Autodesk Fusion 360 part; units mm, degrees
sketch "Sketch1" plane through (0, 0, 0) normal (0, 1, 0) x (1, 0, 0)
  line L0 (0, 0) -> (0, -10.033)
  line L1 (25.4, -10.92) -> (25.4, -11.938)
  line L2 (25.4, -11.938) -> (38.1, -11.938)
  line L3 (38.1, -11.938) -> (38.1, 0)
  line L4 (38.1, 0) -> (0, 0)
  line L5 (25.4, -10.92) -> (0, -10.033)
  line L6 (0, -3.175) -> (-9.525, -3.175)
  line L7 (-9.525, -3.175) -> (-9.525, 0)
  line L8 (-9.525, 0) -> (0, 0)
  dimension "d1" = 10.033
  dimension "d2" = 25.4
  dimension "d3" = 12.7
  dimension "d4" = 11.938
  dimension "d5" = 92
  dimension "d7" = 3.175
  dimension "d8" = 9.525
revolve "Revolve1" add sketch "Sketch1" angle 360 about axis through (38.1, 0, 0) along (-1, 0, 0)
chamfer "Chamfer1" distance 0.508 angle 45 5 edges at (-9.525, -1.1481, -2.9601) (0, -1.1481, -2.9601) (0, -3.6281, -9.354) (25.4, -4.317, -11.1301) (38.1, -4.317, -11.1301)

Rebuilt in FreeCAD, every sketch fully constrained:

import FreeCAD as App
import Part
import Sketcher
Q = App.Units.Quantity


def edges_at(feature, points):
    """Names of the edges that pass closest to the given points."""
    edges = feature.Shape.Edges
    near = lambda p: min(range(len(edges)), key=lambda i: edges[i].distToShape(Part.Vertex(*p))[0])
    return sorted({f"Edge{near(p) + 1}" for p in points})


def add_polygon(sketch, points):
    """Adds a closed chain of lines whose ends are joined by coincident constraints."""
    first, n = sketch.GeometryCount, len(points)
    for a, b in zip(points, points[1:] + points[:1]):
        sketch.addGeometry(Part.LineSegment(App.Vector(*a, 0), App.Vector(*b, 0)), False)
    for i in range(n):
        sketch.addConstraint(Sketcher.Constraint("Coincident", first + i, 2, first + (i + 1) % n, 1))

doc = App.newDocument("Part")
body = doc.addObject("PartDesign::Body", "Body")

sketch1 = body.newObject("Sketcher::SketchObject", "Sketch")
sketch1.AttachmentSupport = (doc.getObject("XZ_Plane"), [""])
sketch1.MapMode = "FlatFace"
add_polygon(sketch1, [(38.1, 0), (-9.5, 0), (-9.5, 3.2), (0, 3.2), (0, 10), (25.4, 10.9), (25.4, 11.9), (38.1, 11.9)])
sketch1.addConstraint(Sketcher.Constraint("Horizontal", 0))
sketch1.addConstraint(Sketcher.Constraint("Vertical", 1))
sketch1.addConstraint(Sketcher.Constraint("Horizontal", 2))
sketch1.addConstraint(Sketcher.Constraint("Vertical", 3))
sketch1.addConstraint(Sketcher.Constraint("Vertical", 5))
sketch1.addConstraint(Sketcher.Constraint("Horizontal", 6))
sketch1.addConstraint(Sketcher.Constraint("Vertical", 7))
sketch1.addConstraint(Sketcher.Constraint("PointOnObject", 0, 2, -1))
sketch1.addConstraint(Sketcher.Constraint("PointOnObject", 2, 2, -2))
sketch1.addConstraint(Sketcher.Constraint("DistanceX", 6, 1, 6, 2, Q("0.5 in")))
sketch1.addConstraint(Sketcher.Constraint("DistanceX", -1, 1, 4, 2, Q("1 in")))
sketch1.addConstraint(Sketcher.Constraint("DistanceY", 7, 2, 7, 1, Q("0.47 in")))
sketch1.addConstraint(Sketcher.Constraint("DistanceX", 2, 1, 2, 2, Q("0.375 in")))
sketch1.addConstraint(Sketcher.Constraint("DistanceY", 1, 1, 1, 2, Q("0.125 in")))
sketch1.addConstraint(Sketcher.Constraint("DistanceY", -1, 1, 3, 2, Q("0.395 in")))
sketch1.addConstraint(Sketcher.Constraint("Angle", 4, Q("2 deg")))
revolution = body.newObject("PartDesign::Revolution", "Revolution")
revolution.Profile = sketch1
revolution.ReferenceAxis = (sketch1, ["H_Axis"])
revolution.Angle = 360
doc.recompute()

chamfer = body.newObject("PartDesign::Chamfer", "Chamfer")
chamfer.Base = (revolution, edges_at(revolution, [
    (-9.525, -1.148, -2.96),
    (0, -1.148, -2.96),
    (0, -3.628, -9.354),
    (25.4, -4.317, -11.13),
    (38.1, -4.317, -11.13),
]))
chamfer.Size = Q("0.02 in")

doc.recompute()
